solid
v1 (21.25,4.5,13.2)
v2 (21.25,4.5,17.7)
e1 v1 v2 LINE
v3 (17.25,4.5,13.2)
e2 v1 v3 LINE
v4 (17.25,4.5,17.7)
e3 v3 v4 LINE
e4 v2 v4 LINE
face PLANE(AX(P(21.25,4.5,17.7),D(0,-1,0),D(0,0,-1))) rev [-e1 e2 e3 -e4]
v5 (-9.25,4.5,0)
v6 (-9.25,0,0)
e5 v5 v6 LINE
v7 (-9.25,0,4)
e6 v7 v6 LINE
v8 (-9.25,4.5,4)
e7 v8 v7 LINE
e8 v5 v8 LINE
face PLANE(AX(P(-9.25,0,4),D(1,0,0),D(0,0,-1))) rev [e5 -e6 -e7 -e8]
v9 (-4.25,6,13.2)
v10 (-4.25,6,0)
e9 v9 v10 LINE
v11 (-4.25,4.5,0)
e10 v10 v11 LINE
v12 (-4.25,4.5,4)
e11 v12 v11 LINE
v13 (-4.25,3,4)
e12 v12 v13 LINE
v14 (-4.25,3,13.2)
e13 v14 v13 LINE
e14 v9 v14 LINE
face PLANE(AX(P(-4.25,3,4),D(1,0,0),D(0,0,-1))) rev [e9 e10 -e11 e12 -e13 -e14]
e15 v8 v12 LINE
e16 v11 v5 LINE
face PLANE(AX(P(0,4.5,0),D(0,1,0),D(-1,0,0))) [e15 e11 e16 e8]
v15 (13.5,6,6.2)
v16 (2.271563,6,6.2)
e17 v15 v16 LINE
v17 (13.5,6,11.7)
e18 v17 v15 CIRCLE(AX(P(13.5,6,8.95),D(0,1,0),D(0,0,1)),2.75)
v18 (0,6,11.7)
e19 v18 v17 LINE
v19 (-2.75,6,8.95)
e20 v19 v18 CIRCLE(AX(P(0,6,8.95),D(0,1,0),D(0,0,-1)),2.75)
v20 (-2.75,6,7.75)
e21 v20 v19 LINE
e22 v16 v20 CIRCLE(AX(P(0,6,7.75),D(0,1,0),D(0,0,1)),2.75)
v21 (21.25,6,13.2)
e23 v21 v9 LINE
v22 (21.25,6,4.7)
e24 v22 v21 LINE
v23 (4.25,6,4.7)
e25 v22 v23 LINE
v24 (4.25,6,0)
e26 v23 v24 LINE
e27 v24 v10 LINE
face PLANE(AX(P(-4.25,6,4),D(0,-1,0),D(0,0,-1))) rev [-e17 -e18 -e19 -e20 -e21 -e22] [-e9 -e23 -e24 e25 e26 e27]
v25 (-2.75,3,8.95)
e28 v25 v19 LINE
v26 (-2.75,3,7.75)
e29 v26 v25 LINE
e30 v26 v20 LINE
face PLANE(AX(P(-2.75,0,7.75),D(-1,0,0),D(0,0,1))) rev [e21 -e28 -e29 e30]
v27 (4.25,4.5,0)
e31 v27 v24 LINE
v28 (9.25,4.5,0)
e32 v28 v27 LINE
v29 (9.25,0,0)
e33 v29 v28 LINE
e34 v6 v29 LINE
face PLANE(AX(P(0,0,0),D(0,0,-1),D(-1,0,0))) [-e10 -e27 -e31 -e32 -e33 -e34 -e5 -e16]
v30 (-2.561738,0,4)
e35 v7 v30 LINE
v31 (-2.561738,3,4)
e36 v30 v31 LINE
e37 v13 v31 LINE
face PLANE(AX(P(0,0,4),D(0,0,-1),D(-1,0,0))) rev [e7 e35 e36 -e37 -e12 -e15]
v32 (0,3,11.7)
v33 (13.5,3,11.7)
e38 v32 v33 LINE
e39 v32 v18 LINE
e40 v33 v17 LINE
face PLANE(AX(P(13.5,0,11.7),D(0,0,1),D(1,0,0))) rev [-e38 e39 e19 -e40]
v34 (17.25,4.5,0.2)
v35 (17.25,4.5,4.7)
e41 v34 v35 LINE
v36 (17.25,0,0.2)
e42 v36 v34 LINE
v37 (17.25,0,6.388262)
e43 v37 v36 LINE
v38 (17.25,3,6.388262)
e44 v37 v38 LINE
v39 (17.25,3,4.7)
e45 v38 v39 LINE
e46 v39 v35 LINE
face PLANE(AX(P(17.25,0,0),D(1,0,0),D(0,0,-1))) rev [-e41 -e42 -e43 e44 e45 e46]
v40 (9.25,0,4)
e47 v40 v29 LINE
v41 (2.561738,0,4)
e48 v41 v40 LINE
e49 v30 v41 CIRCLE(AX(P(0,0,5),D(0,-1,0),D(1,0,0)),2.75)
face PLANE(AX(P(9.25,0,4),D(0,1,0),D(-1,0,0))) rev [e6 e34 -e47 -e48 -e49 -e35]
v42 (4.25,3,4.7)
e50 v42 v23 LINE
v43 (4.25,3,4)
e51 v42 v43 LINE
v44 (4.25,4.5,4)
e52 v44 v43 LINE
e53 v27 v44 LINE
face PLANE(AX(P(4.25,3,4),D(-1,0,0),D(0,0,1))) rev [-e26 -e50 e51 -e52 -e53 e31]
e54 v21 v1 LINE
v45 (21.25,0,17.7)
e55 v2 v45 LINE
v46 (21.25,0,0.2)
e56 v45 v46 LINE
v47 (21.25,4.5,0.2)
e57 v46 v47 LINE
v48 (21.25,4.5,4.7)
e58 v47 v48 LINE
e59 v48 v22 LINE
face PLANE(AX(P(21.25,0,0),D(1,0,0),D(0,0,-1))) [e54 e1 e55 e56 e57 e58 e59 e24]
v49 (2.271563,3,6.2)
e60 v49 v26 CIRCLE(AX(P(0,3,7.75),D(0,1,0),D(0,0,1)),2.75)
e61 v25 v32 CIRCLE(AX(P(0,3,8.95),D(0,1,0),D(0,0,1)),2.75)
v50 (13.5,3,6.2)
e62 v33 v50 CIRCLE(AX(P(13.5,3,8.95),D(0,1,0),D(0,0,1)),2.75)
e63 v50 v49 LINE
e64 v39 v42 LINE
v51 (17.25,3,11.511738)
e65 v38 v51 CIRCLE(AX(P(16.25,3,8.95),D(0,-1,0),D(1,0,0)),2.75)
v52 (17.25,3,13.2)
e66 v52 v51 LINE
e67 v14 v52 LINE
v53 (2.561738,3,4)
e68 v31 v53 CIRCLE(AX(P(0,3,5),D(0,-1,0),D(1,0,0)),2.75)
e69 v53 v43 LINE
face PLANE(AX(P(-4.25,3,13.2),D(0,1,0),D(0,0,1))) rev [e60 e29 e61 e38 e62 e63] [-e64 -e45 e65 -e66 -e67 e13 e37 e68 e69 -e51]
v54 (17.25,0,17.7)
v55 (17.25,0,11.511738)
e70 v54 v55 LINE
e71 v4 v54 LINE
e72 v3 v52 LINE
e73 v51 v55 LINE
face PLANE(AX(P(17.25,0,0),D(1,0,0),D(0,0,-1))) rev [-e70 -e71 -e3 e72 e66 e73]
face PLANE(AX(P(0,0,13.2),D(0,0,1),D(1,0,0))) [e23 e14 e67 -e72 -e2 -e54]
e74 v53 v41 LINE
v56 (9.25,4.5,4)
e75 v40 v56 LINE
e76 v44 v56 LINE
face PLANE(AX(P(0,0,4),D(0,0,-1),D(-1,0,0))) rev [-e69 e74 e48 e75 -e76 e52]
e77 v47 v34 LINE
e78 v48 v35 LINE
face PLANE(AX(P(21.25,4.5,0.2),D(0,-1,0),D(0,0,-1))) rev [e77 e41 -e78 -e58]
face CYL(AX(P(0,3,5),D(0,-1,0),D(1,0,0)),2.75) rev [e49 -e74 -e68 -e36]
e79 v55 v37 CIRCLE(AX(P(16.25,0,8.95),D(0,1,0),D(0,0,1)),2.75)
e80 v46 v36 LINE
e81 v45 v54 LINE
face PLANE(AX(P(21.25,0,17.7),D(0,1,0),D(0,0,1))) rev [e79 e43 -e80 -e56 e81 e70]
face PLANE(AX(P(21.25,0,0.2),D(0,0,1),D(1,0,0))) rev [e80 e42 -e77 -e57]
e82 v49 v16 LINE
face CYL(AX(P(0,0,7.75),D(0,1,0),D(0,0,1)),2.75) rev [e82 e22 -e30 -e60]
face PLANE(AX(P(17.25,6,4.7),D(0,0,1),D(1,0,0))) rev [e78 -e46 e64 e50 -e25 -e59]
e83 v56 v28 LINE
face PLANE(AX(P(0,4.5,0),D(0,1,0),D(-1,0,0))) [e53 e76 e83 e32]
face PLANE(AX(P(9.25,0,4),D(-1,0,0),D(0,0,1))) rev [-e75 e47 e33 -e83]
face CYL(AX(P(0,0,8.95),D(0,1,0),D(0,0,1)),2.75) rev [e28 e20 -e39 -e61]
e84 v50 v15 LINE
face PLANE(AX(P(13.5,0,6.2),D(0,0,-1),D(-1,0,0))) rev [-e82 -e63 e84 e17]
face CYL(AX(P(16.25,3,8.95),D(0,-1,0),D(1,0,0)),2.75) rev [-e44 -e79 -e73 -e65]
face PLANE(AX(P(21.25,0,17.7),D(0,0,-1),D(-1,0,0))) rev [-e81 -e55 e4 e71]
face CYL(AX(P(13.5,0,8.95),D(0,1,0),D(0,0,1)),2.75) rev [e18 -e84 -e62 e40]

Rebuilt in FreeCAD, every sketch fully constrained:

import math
import FreeCAD as App
import Part
import Sketcher


def add_polygon(sketch, points):
    """Adds a closed chain of lines whose ends are joined by coincident constraints."""
    first, n = sketch.GeometryCount, len(points)
    for a, b in zip(points, points[1:] + points[:1]):
        sketch.addGeometry(Part.LineSegment(App.Vector(*a, 0), App.Vector(*b, 0)), False)
    for i in range(n):
        sketch.addConstraint(Sketcher.Constraint("Coincident", first + i, 2, first + (i + 1) % n, 1))

doc = App.newDocument("Part")
params = doc.addObject("Spreadsheet::Sheet", "Params")
for row, (alias, value) in enumerate([
    ("sketch1_width", "5 mm"),
    ("sketch1_height", "3 mm"),
    ("sketch1_width2", "18.5 mm"),
    ("pad1_length", "4 mm"),
    ("sketch2_height", "3 mm"),
    ("sketch2_width", "8.5 mm"),
    ("pad2_length", "9.2 mm"),
    ("sketch3_width", "3 mm"),
    ("sketch3_height", "8.5 mm"),
    ("pad3_length", "13 mm"),
    ("sketch4_width", "4.5 mm"),
    ("sketch4_width2", "1.5 mm"),
    ("sketch4_height", "17.5 mm"),
    ("pad4_length", "4 mm"),
    ("sketch5_radius", "2.75 mm"),
    ("sketch5_width", "13.5 mm"),
    ("sketch5_height", "1.2 mm"),
    ("sketch6_width", "5 mm"),
    ("sketch6_height", "4 mm"),
    ("pad5_length", "1.5 mm"),
    ("sketch7_diameter", "5.5 mm"),
    ("pocket2_length", "3 mm"),
], start=1):
    params.set(f"A{row}", alias)
    params.set(f"B{row}", "=" + value)
    params.setAlias(f"B{row}", alias)

body = doc.addObject("PartDesign::Body", "Body")

# Sketch on XY plane
sketch1 = body.newObject("Sketcher::SketchObject", "Sketch")
sketch1.AttachmentSupport = (doc.getObject("XY_Plane"), [""])
sketch1.MapMode = "FlatFace"
add_polygon(sketch1, [(-9.25, 0), (9.25, 0), (9.25, 3), (4.25, 3), (4.25, 6), (-4.25, 6), (-4.25, 3), (-9.25, 3)])  # lines 0-7
sketch1.addConstraint(Sketcher.Constraint("Horizontal", 0))
sketch1.addConstraint(Sketcher.Constraint("Vertical", 1))
sketch1.addConstraint(Sketcher.Constraint("Horizontal", 2))
sketch1.addConstraint(Sketcher.Constraint("Vertical", 3))
sketch1.addConstraint(Sketcher.Constraint("Horizontal", 4))
sketch1.addConstraint(Sketcher.Constraint("Vertical", 5))
sketch1.addConstraint(Sketcher.Constraint("Horizontal", 6))
sketch1.addConstraint(Sketcher.Constraint("Vertical", 7))
sketch1.addConstraint(Sketcher.Constraint("Symmetric", 0, 2, 7, 2, -1, 1))
sketch1.addConstraint(Sketcher.Constraint("Symmetric", 2, 2, 5, 2, -2))
sketch1.addConstraint(Sketcher.Constraint("Equal", 1, 3))
sketch1.addConstraint(Sketcher.Constraint("DistanceX", 2, 2, 2, 1, 5.0))
sketch1.addConstraint(Sketcher.Constraint("DistanceY", 1, 1, 1, 2, 3.0))
sketch1.addConstraint(Sketcher.Constraint("DistanceX", 0, 1, 0, 2, 18.5))
sketch1.setExpression("Constraints[19]", "Params.sketch1_width")
sketch1.setExpression("Constraints[20]", "Params.sketch1_height")
sketch1.setExpression("Constraints[21]", "Params.sketch1_width2")
pad1 = body.newObject("PartDesign::Pad", "Pad")
pad1.Profile = sketch1
pad1.setExpression("Length", "Params.pad1_length")

# Sketch on XY plane
sketch2 = body.newObject("Sketcher::SketchObject", "Sketch001")
sketch2.AttachmentSupport = (doc.getObject("XY_Plane"), [""])
sketch2.MapMode = "FlatFace"
sketch2.AttachmentOffset = App.Placement(App.Vector(0, 0, 4), App.Rotation())
add_polygon(sketch2, [(-4.25, 6), (-4.25, 3), (4.25, 3), (4.25, 6)])  # lines 0-3
sketch2.addConstraint(Sketcher.Constraint("Vertical", 0))
sketch2.addConstraint(Sketcher.Constraint("Horizontal", 1))
sketch2.addConstraint(Sketcher.Constraint("Vertical", 2))
sketch2.addConstraint(Sketcher.Constraint("Horizontal", 3))
sketch2.addConstraint(Sketcher.Constraint("DistanceY", 0, 2, 0, 1, 3.0))
sketch2.addConstraint(Sketcher.Constraint("DistanceX", 1, 1, 1, 2, 8.5))
sketch2.addConstraint(Sketcher.Constraint("DistanceY", -1, 1, 0, 2, 3.0))
sketch2.addConstraint(Sketcher.Constraint("DistanceX", 0, 2, -1, 1, 4.25))
sketch2.setExpression("Constraints[8]", "Params.sketch2_height")
sketch2.setExpression("Constraints[9]", "Params.sketch2_width")
pad2 = body.newObject("PartDesign::Pad", "Pad001")
pad2.Profile = sketch2
pad2.setExpression("Length", "Params.pad2_length")

# Sketch on YZ plane
sketch3 = body.newObject("Sketcher::SketchObject", "Sketch002")
sketch3.AttachmentSupport = (doc.getObject("YZ_Plane"), [""])
sketch3.MapMode = "FlatFace"
sketch3.AttachmentOffset = App.Placement(App.Vector(0, 0, 4.25), App.Rotation())
add_polygon(sketch3, [(6, 13.2), (3, 13.2), (3, 4.7), (6, 4.7)])  # lines 0-3
sketch3.addConstraint(Sketcher.Constraint("Horizontal", 0))
sketch3.addConstraint(Sketcher.Constraint("Vertical", 1))
sketch3.addConstraint(Sketcher.Constraint("Horizontal", 2))
sketch3.addConstraint(Sketcher.Constraint("Vertical", 3))
sketch3.addConstraint(Sketcher.Constraint("DistanceX", 0, 2, 0, 1, 3.0))
sketch3.addConstraint(Sketcher.Constraint("DistanceY", 1, 2, 1, 1, 8.5))
sketch3.addConstraint(Sketcher.Constraint("DistanceX", -1, 1, 0, 2, 3.0))
sketch3.addConstraint(Sketcher.Constraint("DistanceY", -1, 1, 0, 2, 13.2))
sketch3.setExpression("Constraints[8]", "Params.sketch3_width")
sketch3.setExpression("Constraints[9]", "Params.sketch3_height")
pad3 = body.newObject("PartDesign::Pad", "Pad002")
pad3.Profile = sketch3
pad3.setExpression("Length", "Params.pad3_length")

# Sketch on YZ plane
sketch4 = body.newObject("Sketcher::SketchObject", "Sketch003")
sketch4.AttachmentSupport = (doc.getObject("YZ_Plane"), [""])
sketch4.MapMode = "FlatFace"
sketch4.AttachmentOffset = App.Placement(App.Vector(0, 0, 17.25), App.Rotation())
add_polygon(sketch4, [(4.5, 17.7), (0, 17.7), (0, 0.2), (4.5, 0.2), (4.5, 4.7), (6, 4.7), (6, 13.2), (4.5, 13.2)])  # lines 0-7
sketch4.addConstraint(Sketcher.Constraint("Horizontal", 0))
sketch4.addConstraint(Sketcher.Constraint("Vertical", 1))
sketch4.addConstraint(Sketcher.Constraint("Horizontal", 2))
sketch4.addConstraint(Sketcher.Constraint("Vertical", 3))
sketch4.addConstraint(Sketcher.Constraint("Horizontal", 4))
sketch4.addConstraint(Sketcher.Constraint("Vertical", 5))
sketch4.addConstraint(Sketcher.Constraint("Horizontal", 6))
sketch4.addConstraint(Sketcher.Constraint("Vertical", 7))
sketch4.addConstraint(Sketcher.Constraint("PointOnObject", 0, 2, -2))
sketch4.addConstraint(Sketcher.Constraint("Vertical", 3, 2, 6, 2))
sketch4.addConstraint(Sketcher.Constraint("Equal", 2, 3))
sketch4.addConstraint(Sketcher.Constraint("Equal", 3, 7))
sketch4.addConstraint(Sketcher.Constraint("DistanceX", 0, 2, 0, 1, 4.5))
sketch4.addConstraint(Sketcher.Constraint("DistanceX", 4, 1, 4, 2, 1.5))
sketch4.addConstraint(Sketcher.Constraint("DistanceY", 1, 2, 1, 1, 17.5))
sketch4.addConstraint(Sketcher.Constraint("DistanceY", -1, 1, 0, 2, 17.7))
sketch4.setExpression("Constraints[20]", "Params.sketch4_width")
sketch4.setExpression("Constraints[21]", "Params.sketch4_width2")
sketch4.setExpression("Constraints[22]", "Params.sketch4_height")
pad4 = body.newObject("PartDesign::Pad", "Pad003")
pad4.Profile = sketch4
pad4.setExpression("Length", "Params.pad4_length")

# Sketch on XZ plane
sketch5 = body.newObject("Sketcher::SketchObject", "Sketch004")
sketch5.AttachmentSupport = (doc.getObject("XZ_Plane"), [""])
sketch5.MapMode = "FlatFace"
sketch5.AttachmentOffset = App.Placement(App.Vector(0, 0, -6), App.Rotation())
sketch5.addGeometry(Part.LineSegment(App.Vector(13.5, 6.2, 0), App.Vector(2.271563, 6.2, 0)), False)
sketch5.addGeometry(Part.ArcOfCircle(Part.Circle(App.Vector(0, 7.75, 0), App.Vector(0, 0, 1), 2.75), math.radians(180), math.radians(325.692349)), False)
sketch5.addGeometry(Part.LineSegment(App.Vector(-2.75, 7.75, 0), App.Vector(-2.75, 8.95, 0)), False)
sketch5.addGeometry(Part.ArcOfCircle(Part.Circle(App.Vector(0, 8.95, 0), App.Vector(0, 0, 1), 2.75), math.radians(90), math.radians(180)), False)
sketch5.addGeometry(Part.LineSegment(App.Vector(0, 11.7, 0), App.Vector(13.5, 11.7, 0)), False)
sketch5.addGeometry(Part.ArcOfCircle(Part.Circle(App.Vector(13.5, 8.95, 0), App.Vector(0, 0, 1), 2.75), math.radians(-90), math.radians(90)), False)
sketch5.addConstraint(Sketcher.Constraint("Coincident", 0, 2, 1, 2))
sketch5.addConstraint(Sketcher.Constraint("Tangent", 1, 1, 2, 1))
sketch5.addConstraint(Sketcher.Constraint("Tangent", 2, 2, 3, 2))
sketch5.addConstraint(Sketcher.Constraint("Tangent", 3, 1, 4, 1))
sketch5.addConstraint(Sketcher.Constraint("Tangent", 4, 2, 5, 2))
sketch5.addConstraint(Sketcher.Constraint("Tangent", 5, 1, 0, 1))
sketch5.addConstraint(Sketcher.Constraint("Horizontal", 0))
sketch5.addConstraint(Sketcher.Constraint("Vertical", 2))
sketch5.addConstraint(Sketcher.Constraint("Horizontal", 4))
sketch5.addConstraint(Sketcher.Constraint("Equal", 1, 3))
sketch5.addConstraint(Sketcher.Constraint("Equal", 3, 5))
sketch5.addConstraint(Sketcher.Constraint("PointOnObject", 1, 3, -2))
sketch5.addConstraint(Sketcher.Constraint("Radius", 1, 2.75))
sketch5.addConstraint(Sketcher.Constraint("DistanceX", 4, 1, 4, 2, 13.5))
sketch5.addConstraint(Sketcher.Constraint("DistanceY", 2, 1, 2, 2, 1.2))
sketch5.addConstraint(Sketcher.Constraint("DistanceY", -1, 1, 0, 2, 6.2))
sketch5.setExpression("Constraints[12]", "Params.sketch5_radius")
sketch5.setExpression("Constraints[13]", "Params.sketch5_width")
sketch5.setExpression("Constraints[14]", "Params.sketch5_height")
pocket1 = body.newObject("PartDesign::Pocket", "Pocket")
pocket1.Profile = sketch5
pocket1.Type = "ThroughAll"
pocket1.Reversed = True

# Sketch on XZ plane
sketch6 = body.newObject("Sketcher::SketchObject", "Sketch005")
sketch6.AttachmentSupport = (doc.getObject("XZ_Plane"), [""])
sketch6.MapMode = "FlatFace"
sketch6.AttachmentOffset = App.Placement(App.Vector(0, 0, -3), App.Rotation())
add_polygon(sketch6, [(-9.25, 0), (-9.25, 4), (-4.25, 4), (-4.25, 0)])  # lines 0-3
add_polygon(sketch6, [(4.25, 0), (4.25, 4), (9.25, 4), (9.25, 0)])  # lines 4-7
sketch6.addConstraint(Sketcher.Constraint("Vertical", 0))
sketch6.addConstraint(Sketcher.Constraint("Horizontal", 1))
sketch6.addConstraint(Sketcher.Constraint("Vertical", 2))
sketch6.addConstraint(Sketcher.Constraint("Horizontal", 3))
sketch6.addConstraint(Sketcher.Constraint("Vertical", 4))
sketch6.addConstraint(Sketcher.Constraint("Horizontal", 5))
sketch6.addConstraint(Sketcher.Constraint("Vertical", 6))
sketch6.addConstraint(Sketcher.Constraint("Horizontal", 7))
sketch6.addConstraint(Sketcher.Constraint("Symmetric", 3, 2, 6, 2, -1, 1))
sketch6.addConstraint(Sketcher.Constraint("Symmetric", 1, 2, 4, 2, -2))
sketch6.addConstraint(Sketcher.Constraint("PointOnObject", 2, 2, -1))
sketch6.addConstraint(Sketcher.Constraint("DistanceX", 1, 1, 1, 2, 5.0))
sketch6.addConstraint(Sketcher.Constraint("DistanceY", 0, 1, 0, 2, 4.0))
sketch6.addConstraint(Sketcher.Constraint("DistanceX", 1, 2, 4, 2, 8.5))
sketch6.setExpression("Constraints[19]", "Params.sketch6_width")
sketch6.setExpression("Constraints[20]", "Params.sketch6_height")
pad5 = body.newObject("PartDesign::Pad", "Pad004")
pad5.Profile = sketch6
pad5.setExpression("Length", "Params.pad5_length")
pad5.Reversed = True

# Sketch on XZ plane
sketch7 = body.newObject("Sketcher::SketchObject", "Sketch006")
sketch7.AttachmentSupport = (doc.getObject("XZ_Plane"), [""])
sketch7.MapMode = "FlatFace"
sketch7.addGeometry(Part.Circle(App.Vector(0, 5, 0), App.Vector(0, 0, 1), 2.75), False)
sketch7.addGeometry(Part.Circle(App.Vector(16.25, 8.95, 0), App.Vector(0, 0, 1), 2.75), False)
sketch7.addConstraint(Sketcher.Constraint("Equal", 0, 1))
sketch7.addConstraint(Sketcher.Constraint("PointOnObject", 0, 3, -2))
sketch7.addConstraint(Sketcher.Constraint("Diameter", 0, 5.5))
sketch7.addConstraint(Sketcher.Constraint("DistanceY", -1, 1, 0, 3, 5.0))
sketch7.addConstraint(Sketcher.Constraint("DistanceX", -1, 1, 1, 3, 16.25))
sketch7.addConstraint(Sketcher.Constraint("DistanceY", -1, 1, 1, 3, 8.95))
sketch7.setExpression("Constraints[2]", "Params.sketch7_diameter")
pocket2 = body.newObject("PartDesign::Pocket", "Pocket001")
pocket2.Profile = sketch7
pocket2.setExpression("Length", "Params.pocket2_length")

doc.recompute()
